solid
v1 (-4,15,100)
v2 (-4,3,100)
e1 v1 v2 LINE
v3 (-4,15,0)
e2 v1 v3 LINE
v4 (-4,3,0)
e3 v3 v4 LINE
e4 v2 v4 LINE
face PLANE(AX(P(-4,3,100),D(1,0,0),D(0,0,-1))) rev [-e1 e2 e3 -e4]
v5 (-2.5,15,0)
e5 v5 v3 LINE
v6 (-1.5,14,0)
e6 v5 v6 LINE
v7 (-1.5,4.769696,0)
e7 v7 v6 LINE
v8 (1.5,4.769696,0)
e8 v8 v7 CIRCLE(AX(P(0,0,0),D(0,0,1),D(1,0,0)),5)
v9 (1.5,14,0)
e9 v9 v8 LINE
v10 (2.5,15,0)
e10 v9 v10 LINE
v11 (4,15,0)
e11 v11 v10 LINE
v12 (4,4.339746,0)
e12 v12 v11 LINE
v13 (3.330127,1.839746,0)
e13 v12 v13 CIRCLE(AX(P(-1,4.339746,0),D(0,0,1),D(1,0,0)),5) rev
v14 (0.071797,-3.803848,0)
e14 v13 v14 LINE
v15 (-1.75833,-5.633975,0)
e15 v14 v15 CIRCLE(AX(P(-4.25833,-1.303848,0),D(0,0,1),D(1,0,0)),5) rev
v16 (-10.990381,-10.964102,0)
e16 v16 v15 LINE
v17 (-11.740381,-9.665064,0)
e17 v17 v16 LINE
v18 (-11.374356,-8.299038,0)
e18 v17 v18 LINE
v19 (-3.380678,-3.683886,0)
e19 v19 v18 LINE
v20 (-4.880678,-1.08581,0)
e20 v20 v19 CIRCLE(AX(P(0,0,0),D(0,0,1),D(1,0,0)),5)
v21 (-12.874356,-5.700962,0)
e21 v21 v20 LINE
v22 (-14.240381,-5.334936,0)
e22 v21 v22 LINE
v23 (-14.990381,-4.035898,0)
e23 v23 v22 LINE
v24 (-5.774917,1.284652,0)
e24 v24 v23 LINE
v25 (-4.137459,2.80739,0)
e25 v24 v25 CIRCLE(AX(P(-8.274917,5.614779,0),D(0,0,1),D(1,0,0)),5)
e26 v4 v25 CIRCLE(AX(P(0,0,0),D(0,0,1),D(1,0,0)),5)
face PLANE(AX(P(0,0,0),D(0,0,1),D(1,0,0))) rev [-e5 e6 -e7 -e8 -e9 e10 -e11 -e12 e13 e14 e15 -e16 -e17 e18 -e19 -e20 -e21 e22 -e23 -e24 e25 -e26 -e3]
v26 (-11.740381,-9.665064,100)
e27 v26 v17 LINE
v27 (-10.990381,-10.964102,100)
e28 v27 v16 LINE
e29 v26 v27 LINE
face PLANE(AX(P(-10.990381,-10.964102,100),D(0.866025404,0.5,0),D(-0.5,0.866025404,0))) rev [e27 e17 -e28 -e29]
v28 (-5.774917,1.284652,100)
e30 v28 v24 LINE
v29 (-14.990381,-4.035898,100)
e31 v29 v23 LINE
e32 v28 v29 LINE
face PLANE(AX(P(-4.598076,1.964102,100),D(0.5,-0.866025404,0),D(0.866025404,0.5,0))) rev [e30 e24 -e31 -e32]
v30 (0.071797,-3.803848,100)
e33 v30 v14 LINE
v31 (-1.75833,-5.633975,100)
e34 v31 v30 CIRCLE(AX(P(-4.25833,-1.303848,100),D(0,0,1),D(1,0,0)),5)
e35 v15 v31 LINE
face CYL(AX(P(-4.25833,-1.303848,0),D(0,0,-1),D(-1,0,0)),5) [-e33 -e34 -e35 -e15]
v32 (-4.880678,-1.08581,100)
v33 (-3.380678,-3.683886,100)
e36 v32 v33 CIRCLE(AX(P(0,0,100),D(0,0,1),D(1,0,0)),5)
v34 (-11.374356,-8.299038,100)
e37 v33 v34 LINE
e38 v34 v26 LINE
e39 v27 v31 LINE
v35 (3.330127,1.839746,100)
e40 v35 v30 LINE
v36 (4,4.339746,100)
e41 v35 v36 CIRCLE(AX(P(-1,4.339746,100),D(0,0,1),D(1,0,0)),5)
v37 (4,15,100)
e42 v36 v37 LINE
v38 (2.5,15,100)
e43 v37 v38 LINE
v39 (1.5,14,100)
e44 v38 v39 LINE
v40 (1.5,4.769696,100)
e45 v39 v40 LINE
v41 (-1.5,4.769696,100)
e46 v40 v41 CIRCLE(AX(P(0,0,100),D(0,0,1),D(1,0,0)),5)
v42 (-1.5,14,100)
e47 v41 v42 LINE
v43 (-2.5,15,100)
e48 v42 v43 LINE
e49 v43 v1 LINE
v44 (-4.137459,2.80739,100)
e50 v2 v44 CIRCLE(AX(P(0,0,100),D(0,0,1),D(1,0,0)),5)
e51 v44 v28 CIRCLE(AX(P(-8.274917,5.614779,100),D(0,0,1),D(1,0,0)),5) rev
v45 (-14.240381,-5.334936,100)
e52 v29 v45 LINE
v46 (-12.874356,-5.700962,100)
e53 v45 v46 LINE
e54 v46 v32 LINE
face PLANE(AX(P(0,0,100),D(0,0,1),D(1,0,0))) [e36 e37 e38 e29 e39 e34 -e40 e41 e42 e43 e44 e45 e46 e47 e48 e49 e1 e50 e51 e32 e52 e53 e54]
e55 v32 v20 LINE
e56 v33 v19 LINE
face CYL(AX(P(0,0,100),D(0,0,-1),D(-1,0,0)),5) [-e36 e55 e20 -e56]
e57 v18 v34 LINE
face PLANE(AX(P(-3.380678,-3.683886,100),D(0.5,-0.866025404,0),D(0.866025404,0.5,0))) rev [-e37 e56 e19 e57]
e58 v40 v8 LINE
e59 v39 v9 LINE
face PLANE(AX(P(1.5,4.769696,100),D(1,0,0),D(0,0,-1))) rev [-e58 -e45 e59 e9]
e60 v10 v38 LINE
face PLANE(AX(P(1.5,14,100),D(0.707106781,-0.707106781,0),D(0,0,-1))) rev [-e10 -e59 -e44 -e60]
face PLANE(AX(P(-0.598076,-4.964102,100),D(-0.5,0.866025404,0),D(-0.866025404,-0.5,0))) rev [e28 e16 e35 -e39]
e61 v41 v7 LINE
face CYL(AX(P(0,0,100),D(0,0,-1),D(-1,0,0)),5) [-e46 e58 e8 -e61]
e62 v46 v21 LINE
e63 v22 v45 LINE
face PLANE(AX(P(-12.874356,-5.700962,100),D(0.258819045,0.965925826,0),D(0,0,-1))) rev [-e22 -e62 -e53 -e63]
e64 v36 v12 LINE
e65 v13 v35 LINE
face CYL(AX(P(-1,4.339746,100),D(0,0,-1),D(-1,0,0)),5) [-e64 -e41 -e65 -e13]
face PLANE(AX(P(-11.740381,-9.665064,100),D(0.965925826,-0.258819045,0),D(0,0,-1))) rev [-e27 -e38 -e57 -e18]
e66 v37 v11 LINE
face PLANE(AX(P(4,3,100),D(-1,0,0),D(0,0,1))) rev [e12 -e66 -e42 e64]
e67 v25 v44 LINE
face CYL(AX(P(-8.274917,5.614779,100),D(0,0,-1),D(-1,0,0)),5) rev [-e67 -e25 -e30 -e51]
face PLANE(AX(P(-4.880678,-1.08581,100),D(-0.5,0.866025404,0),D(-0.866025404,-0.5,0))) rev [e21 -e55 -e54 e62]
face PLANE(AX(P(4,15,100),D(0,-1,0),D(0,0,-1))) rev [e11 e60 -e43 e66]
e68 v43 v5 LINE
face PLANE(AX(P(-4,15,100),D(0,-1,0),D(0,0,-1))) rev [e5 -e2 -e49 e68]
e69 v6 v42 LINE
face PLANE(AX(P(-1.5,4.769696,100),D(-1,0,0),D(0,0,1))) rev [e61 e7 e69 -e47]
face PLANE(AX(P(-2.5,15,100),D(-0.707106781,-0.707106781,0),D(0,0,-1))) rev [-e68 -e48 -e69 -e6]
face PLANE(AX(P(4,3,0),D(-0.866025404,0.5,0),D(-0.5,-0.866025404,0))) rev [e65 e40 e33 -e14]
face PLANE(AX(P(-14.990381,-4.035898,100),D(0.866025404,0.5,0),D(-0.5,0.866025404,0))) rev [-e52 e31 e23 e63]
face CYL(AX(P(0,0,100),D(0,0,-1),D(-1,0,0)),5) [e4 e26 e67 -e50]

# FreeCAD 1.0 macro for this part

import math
import FreeCAD as App
import Part
import Sketcher
Q = App.Units.Quantity


def edges_at(feature, points):
    """Names of the edges that pass closest to the given points."""
    edges = feature.Shape.Edges
    near = lambda p: min(range(len(edges)), key=lambda i: edges[i].distToShape(Part.Vertex(*p))[0])
    return sorted({f"Edge{near(p) + 1}" for p in points})

doc = App.newDocument("Part")
body = doc.addObject("PartDesign::Body", "Body")

# Sketch on XY plane
sketch1 = body.newObject("Sketcher::SketchObject", "Sketch")
sketch1.AttachmentSupport = (doc.getObject("XY_Plane"), [""])
sketch1.MapMode = "FlatFace"
sketch1.addGeometry([
    Part.LineSegment(App.Vector(1.5, 15, 0), App.Vector(1.5, 4.8, 0)),  # 0
    Part.ArcOfCircle(Part.Circle(App.Vector(0, 0, 0), App.Vector(0, 0, 1), 5), math.radians(73), math.radians(107)),  # 1
    Part.LineSegment(App.Vector(-1.5, 4.8, 0), App.Vector(-1.5, 15, 0)),  # 2
    Part.LineSegment(App.Vector(-1.5, 15, 0), App.Vector(-4, 15, 0)),  # 3
    Part.LineSegment(App.Vector(-4, 15, 0), App.Vector(-4, 3, 0)),  # 4
    Part.ArcOfCircle(Part.Circle(App.Vector(0, 0, 0), App.Vector(0, 0, 1), 5), math.radians(143.13), math.radians(156.87)),  # 5
    Part.LineSegment(App.Vector(-4.6, 2, 0), App.Vector(-15, -4, 0)),  # 6
    Part.LineSegment(App.Vector(-15, -4, 0), App.Vector(-13.7, -6.2, 0)),  # 7
    Part.LineSegment(App.Vector(-13.7, -6.2, 0), App.Vector(-4.9, -1.1, 0)),  # 8
    Part.ArcOfCircle(Part.Circle(App.Vector(0, 0, 0), App.Vector(0, 0, 1), 5), math.radians(-167), math.radians(-133)),  # 9
    Part.LineSegment(App.Vector(-3.4, -3.7, 0), App.Vector(-12.2, -8.8, 0)),  # 10
    Part.LineSegment(App.Vector(-12.2, -8.8, 0), App.Vector(-11, -11, 0)),  # 11
    Part.LineSegment(App.Vector(-11, -11, 0), App.Vector(-0.6, -5, 0)),  # 12
    Part.ArcOfCircle(Part.Circle(App.Vector(0, 0, 0), App.Vector(0, 0, 1), 5), math.radians(-97), math.radians(37)),  # 13
    Part.LineSegment(App.Vector(4, 3, 0), App.Vector(4, 15, 0)),  # 14
    Part.LineSegment(App.Vector(4, 15, 0), App.Vector(1.5, 15, 0)),  # 15
], False)
sketch1.addConstraint([
    Sketcher.Constraint("Coincident", 0, 2, 1, 1),
    Sketcher.Constraint("Coincident", 1, 2, 2, 1),
    Sketcher.Constraint("Coincident", 2, 2, 3, 1),
    Sketcher.Constraint("Coincident", 3, 2, 4, 1),
    Sketcher.Constraint("Coincident", 4, 2, 5, 1),
    Sketcher.Constraint("Coincident", 5, 2, 6, 1),
    Sketcher.Constraint("Coincident", 6, 2, 7, 1),
    Sketcher.Constraint("Coincident", 7, 2, 8, 1),
    Sketcher.Constraint("Coincident", 8, 2, 9, 1),
    Sketcher.Constraint("Coincident", 9, 2, 10, 1),
    Sketcher.Constraint("Coincident", 10, 2, 11, 1),
    Sketcher.Constraint("Coincident", 11, 2, 12, 1),
    Sketcher.Constraint("Coincident", 12, 2, 13, 1),
    Sketcher.Constraint("Coincident", 13, 2, 14, 1),
    Sketcher.Constraint("Coincident", 14, 2, 15, 1),
    Sketcher.Constraint("Coincident", 15, 2, 0, 1),
    Sketcher.Constraint("Vertical", 0),
    Sketcher.Constraint("Vertical", 2),
    Sketcher.Constraint("Horizontal", 3),
    Sketcher.Constraint("Vertical", 4),
    Sketcher.Constraint("Vertical", 14),
    Sketcher.Constraint("Horizontal", 15),
    Sketcher.Constraint("Coincident", 1, 3, -1, 1),
    Sketcher.Constraint("Coincident", 5, 3, -1, 1),
    Sketcher.Constraint("Coincident", 9, 3, -1, 1),
    Sketcher.Constraint("Coincident", 13, 3, -1, 1),
    Sketcher.Constraint("Equal", 1, 5),
    Sketcher.Constraint("Equal", 5, 9),
    Sketcher.Constraint("Equal", 9, 13),
    Sketcher.Constraint("Symmetric", 3, 2, 14, 2, -2),
    Sketcher.Constraint("Perpendicular", 6, 7),
    Sketcher.Constraint("Perpendicular", 7, 8),
    Sketcher.Constraint("Parallel", 8, 10),
    Sketcher.Constraint("Perpendicular", 10, 11),
    Sketcher.Constraint("Perpendicular", 11, 12),
    Sketcher.Constraint("Horizontal", 0, 2, 1, 2),
    Sketcher.Constraint("Equal", 8, 10),
    Sketcher.Constraint("Equal", 7, 11),
    Sketcher.Constraint("Equal", 6, 12),
    Sketcher.Constraint("Radius", 1, 5.0),
    Sketcher.Constraint("DistanceY", 4, 2, 4, 1, 12.0),
    Sketcher.Constraint("Angle", 6, Q("-150 deg")),
    Sketcher.Constraint("Distance", 6, 12.0),
    Sketcher.Constraint("DistanceX", 3, 2, 3, 1, 2.5),
    Sketcher.Constraint("DistanceY", -1, 1, 2, 2, 15.0),
    Sketcher.Constraint("DistanceX", 6, 2, 11, 2, 4.0),
    Sketcher.Constraint("Distance", 7, 2.5),
])
pad1 = body.newObject("PartDesign::Pad", "Pad")
pad1.Profile = sketch1
pad1.Length = 100

# Sketch on XY plane
sketch2 = body.newObject("Sketcher::SketchObject", "Sketch001")
sketch2.AttachmentSupport = (doc.getObject("XY_Plane"), [""])
sketch2.MapMode = "FlatFace"
sketch2.AttachmentOffset = App.Placement(App.Vector(0, 0, 100), App.Rotation())
sketch2.addGeometry([
    Part.LineSegment(App.Vector(4, 3, 0), App.Vector(-1, -5, 0)),
    Part.ArcOfCircle(Part.Circle(App.Vector(0, 0, 0), App.Vector(0, 0, 1), 5), math.radians(-97), math.radians(37)),
], False)
sketch2.addConstraint([
    Sketcher.Constraint("Coincident", 0, 1, 1, 2),
    Sketcher.Constraint("Coincident", 1, 1, 0, 2),
    Sketcher.Constraint("Coincident", 1, 3, -1, 1),
    Sketcher.Constraint("Radius", 1, 5.0),
    Sketcher.Constraint("Angle", 0, Q("-120 deg")),
    Sketcher.Constraint("DistanceX", -1, 1, 0, 1, 4.0),
])
pocket1 = body.newObject("PartDesign::Pocket", "Pocket")
pocket1.Profile = sketch2
pocket1.Type = "ThroughAll"
doc.recompute()

fillet = body.newObject("PartDesign::Fillet", "Fillet")
fillet.Base = (pocket1, edges_at(pocket1, [(4, 3, 50), (-0.598, -4.964, 50), (-4.598, 1.964, 50)]))
fillet.Radius = 5
doc.recompute()

chamfer = body.newObject("PartDesign::Chamfer", "Chamfer")
chamfer.Base = (fillet, edges_at(fillet, [
    (-1.5, 15, 50),
    (1.5, 15, 50),
    (-12.24, -8.799, 50),
    (-13.74, -6.201, 50),
]))
chamfer.Size = 1

doc.recompute()
